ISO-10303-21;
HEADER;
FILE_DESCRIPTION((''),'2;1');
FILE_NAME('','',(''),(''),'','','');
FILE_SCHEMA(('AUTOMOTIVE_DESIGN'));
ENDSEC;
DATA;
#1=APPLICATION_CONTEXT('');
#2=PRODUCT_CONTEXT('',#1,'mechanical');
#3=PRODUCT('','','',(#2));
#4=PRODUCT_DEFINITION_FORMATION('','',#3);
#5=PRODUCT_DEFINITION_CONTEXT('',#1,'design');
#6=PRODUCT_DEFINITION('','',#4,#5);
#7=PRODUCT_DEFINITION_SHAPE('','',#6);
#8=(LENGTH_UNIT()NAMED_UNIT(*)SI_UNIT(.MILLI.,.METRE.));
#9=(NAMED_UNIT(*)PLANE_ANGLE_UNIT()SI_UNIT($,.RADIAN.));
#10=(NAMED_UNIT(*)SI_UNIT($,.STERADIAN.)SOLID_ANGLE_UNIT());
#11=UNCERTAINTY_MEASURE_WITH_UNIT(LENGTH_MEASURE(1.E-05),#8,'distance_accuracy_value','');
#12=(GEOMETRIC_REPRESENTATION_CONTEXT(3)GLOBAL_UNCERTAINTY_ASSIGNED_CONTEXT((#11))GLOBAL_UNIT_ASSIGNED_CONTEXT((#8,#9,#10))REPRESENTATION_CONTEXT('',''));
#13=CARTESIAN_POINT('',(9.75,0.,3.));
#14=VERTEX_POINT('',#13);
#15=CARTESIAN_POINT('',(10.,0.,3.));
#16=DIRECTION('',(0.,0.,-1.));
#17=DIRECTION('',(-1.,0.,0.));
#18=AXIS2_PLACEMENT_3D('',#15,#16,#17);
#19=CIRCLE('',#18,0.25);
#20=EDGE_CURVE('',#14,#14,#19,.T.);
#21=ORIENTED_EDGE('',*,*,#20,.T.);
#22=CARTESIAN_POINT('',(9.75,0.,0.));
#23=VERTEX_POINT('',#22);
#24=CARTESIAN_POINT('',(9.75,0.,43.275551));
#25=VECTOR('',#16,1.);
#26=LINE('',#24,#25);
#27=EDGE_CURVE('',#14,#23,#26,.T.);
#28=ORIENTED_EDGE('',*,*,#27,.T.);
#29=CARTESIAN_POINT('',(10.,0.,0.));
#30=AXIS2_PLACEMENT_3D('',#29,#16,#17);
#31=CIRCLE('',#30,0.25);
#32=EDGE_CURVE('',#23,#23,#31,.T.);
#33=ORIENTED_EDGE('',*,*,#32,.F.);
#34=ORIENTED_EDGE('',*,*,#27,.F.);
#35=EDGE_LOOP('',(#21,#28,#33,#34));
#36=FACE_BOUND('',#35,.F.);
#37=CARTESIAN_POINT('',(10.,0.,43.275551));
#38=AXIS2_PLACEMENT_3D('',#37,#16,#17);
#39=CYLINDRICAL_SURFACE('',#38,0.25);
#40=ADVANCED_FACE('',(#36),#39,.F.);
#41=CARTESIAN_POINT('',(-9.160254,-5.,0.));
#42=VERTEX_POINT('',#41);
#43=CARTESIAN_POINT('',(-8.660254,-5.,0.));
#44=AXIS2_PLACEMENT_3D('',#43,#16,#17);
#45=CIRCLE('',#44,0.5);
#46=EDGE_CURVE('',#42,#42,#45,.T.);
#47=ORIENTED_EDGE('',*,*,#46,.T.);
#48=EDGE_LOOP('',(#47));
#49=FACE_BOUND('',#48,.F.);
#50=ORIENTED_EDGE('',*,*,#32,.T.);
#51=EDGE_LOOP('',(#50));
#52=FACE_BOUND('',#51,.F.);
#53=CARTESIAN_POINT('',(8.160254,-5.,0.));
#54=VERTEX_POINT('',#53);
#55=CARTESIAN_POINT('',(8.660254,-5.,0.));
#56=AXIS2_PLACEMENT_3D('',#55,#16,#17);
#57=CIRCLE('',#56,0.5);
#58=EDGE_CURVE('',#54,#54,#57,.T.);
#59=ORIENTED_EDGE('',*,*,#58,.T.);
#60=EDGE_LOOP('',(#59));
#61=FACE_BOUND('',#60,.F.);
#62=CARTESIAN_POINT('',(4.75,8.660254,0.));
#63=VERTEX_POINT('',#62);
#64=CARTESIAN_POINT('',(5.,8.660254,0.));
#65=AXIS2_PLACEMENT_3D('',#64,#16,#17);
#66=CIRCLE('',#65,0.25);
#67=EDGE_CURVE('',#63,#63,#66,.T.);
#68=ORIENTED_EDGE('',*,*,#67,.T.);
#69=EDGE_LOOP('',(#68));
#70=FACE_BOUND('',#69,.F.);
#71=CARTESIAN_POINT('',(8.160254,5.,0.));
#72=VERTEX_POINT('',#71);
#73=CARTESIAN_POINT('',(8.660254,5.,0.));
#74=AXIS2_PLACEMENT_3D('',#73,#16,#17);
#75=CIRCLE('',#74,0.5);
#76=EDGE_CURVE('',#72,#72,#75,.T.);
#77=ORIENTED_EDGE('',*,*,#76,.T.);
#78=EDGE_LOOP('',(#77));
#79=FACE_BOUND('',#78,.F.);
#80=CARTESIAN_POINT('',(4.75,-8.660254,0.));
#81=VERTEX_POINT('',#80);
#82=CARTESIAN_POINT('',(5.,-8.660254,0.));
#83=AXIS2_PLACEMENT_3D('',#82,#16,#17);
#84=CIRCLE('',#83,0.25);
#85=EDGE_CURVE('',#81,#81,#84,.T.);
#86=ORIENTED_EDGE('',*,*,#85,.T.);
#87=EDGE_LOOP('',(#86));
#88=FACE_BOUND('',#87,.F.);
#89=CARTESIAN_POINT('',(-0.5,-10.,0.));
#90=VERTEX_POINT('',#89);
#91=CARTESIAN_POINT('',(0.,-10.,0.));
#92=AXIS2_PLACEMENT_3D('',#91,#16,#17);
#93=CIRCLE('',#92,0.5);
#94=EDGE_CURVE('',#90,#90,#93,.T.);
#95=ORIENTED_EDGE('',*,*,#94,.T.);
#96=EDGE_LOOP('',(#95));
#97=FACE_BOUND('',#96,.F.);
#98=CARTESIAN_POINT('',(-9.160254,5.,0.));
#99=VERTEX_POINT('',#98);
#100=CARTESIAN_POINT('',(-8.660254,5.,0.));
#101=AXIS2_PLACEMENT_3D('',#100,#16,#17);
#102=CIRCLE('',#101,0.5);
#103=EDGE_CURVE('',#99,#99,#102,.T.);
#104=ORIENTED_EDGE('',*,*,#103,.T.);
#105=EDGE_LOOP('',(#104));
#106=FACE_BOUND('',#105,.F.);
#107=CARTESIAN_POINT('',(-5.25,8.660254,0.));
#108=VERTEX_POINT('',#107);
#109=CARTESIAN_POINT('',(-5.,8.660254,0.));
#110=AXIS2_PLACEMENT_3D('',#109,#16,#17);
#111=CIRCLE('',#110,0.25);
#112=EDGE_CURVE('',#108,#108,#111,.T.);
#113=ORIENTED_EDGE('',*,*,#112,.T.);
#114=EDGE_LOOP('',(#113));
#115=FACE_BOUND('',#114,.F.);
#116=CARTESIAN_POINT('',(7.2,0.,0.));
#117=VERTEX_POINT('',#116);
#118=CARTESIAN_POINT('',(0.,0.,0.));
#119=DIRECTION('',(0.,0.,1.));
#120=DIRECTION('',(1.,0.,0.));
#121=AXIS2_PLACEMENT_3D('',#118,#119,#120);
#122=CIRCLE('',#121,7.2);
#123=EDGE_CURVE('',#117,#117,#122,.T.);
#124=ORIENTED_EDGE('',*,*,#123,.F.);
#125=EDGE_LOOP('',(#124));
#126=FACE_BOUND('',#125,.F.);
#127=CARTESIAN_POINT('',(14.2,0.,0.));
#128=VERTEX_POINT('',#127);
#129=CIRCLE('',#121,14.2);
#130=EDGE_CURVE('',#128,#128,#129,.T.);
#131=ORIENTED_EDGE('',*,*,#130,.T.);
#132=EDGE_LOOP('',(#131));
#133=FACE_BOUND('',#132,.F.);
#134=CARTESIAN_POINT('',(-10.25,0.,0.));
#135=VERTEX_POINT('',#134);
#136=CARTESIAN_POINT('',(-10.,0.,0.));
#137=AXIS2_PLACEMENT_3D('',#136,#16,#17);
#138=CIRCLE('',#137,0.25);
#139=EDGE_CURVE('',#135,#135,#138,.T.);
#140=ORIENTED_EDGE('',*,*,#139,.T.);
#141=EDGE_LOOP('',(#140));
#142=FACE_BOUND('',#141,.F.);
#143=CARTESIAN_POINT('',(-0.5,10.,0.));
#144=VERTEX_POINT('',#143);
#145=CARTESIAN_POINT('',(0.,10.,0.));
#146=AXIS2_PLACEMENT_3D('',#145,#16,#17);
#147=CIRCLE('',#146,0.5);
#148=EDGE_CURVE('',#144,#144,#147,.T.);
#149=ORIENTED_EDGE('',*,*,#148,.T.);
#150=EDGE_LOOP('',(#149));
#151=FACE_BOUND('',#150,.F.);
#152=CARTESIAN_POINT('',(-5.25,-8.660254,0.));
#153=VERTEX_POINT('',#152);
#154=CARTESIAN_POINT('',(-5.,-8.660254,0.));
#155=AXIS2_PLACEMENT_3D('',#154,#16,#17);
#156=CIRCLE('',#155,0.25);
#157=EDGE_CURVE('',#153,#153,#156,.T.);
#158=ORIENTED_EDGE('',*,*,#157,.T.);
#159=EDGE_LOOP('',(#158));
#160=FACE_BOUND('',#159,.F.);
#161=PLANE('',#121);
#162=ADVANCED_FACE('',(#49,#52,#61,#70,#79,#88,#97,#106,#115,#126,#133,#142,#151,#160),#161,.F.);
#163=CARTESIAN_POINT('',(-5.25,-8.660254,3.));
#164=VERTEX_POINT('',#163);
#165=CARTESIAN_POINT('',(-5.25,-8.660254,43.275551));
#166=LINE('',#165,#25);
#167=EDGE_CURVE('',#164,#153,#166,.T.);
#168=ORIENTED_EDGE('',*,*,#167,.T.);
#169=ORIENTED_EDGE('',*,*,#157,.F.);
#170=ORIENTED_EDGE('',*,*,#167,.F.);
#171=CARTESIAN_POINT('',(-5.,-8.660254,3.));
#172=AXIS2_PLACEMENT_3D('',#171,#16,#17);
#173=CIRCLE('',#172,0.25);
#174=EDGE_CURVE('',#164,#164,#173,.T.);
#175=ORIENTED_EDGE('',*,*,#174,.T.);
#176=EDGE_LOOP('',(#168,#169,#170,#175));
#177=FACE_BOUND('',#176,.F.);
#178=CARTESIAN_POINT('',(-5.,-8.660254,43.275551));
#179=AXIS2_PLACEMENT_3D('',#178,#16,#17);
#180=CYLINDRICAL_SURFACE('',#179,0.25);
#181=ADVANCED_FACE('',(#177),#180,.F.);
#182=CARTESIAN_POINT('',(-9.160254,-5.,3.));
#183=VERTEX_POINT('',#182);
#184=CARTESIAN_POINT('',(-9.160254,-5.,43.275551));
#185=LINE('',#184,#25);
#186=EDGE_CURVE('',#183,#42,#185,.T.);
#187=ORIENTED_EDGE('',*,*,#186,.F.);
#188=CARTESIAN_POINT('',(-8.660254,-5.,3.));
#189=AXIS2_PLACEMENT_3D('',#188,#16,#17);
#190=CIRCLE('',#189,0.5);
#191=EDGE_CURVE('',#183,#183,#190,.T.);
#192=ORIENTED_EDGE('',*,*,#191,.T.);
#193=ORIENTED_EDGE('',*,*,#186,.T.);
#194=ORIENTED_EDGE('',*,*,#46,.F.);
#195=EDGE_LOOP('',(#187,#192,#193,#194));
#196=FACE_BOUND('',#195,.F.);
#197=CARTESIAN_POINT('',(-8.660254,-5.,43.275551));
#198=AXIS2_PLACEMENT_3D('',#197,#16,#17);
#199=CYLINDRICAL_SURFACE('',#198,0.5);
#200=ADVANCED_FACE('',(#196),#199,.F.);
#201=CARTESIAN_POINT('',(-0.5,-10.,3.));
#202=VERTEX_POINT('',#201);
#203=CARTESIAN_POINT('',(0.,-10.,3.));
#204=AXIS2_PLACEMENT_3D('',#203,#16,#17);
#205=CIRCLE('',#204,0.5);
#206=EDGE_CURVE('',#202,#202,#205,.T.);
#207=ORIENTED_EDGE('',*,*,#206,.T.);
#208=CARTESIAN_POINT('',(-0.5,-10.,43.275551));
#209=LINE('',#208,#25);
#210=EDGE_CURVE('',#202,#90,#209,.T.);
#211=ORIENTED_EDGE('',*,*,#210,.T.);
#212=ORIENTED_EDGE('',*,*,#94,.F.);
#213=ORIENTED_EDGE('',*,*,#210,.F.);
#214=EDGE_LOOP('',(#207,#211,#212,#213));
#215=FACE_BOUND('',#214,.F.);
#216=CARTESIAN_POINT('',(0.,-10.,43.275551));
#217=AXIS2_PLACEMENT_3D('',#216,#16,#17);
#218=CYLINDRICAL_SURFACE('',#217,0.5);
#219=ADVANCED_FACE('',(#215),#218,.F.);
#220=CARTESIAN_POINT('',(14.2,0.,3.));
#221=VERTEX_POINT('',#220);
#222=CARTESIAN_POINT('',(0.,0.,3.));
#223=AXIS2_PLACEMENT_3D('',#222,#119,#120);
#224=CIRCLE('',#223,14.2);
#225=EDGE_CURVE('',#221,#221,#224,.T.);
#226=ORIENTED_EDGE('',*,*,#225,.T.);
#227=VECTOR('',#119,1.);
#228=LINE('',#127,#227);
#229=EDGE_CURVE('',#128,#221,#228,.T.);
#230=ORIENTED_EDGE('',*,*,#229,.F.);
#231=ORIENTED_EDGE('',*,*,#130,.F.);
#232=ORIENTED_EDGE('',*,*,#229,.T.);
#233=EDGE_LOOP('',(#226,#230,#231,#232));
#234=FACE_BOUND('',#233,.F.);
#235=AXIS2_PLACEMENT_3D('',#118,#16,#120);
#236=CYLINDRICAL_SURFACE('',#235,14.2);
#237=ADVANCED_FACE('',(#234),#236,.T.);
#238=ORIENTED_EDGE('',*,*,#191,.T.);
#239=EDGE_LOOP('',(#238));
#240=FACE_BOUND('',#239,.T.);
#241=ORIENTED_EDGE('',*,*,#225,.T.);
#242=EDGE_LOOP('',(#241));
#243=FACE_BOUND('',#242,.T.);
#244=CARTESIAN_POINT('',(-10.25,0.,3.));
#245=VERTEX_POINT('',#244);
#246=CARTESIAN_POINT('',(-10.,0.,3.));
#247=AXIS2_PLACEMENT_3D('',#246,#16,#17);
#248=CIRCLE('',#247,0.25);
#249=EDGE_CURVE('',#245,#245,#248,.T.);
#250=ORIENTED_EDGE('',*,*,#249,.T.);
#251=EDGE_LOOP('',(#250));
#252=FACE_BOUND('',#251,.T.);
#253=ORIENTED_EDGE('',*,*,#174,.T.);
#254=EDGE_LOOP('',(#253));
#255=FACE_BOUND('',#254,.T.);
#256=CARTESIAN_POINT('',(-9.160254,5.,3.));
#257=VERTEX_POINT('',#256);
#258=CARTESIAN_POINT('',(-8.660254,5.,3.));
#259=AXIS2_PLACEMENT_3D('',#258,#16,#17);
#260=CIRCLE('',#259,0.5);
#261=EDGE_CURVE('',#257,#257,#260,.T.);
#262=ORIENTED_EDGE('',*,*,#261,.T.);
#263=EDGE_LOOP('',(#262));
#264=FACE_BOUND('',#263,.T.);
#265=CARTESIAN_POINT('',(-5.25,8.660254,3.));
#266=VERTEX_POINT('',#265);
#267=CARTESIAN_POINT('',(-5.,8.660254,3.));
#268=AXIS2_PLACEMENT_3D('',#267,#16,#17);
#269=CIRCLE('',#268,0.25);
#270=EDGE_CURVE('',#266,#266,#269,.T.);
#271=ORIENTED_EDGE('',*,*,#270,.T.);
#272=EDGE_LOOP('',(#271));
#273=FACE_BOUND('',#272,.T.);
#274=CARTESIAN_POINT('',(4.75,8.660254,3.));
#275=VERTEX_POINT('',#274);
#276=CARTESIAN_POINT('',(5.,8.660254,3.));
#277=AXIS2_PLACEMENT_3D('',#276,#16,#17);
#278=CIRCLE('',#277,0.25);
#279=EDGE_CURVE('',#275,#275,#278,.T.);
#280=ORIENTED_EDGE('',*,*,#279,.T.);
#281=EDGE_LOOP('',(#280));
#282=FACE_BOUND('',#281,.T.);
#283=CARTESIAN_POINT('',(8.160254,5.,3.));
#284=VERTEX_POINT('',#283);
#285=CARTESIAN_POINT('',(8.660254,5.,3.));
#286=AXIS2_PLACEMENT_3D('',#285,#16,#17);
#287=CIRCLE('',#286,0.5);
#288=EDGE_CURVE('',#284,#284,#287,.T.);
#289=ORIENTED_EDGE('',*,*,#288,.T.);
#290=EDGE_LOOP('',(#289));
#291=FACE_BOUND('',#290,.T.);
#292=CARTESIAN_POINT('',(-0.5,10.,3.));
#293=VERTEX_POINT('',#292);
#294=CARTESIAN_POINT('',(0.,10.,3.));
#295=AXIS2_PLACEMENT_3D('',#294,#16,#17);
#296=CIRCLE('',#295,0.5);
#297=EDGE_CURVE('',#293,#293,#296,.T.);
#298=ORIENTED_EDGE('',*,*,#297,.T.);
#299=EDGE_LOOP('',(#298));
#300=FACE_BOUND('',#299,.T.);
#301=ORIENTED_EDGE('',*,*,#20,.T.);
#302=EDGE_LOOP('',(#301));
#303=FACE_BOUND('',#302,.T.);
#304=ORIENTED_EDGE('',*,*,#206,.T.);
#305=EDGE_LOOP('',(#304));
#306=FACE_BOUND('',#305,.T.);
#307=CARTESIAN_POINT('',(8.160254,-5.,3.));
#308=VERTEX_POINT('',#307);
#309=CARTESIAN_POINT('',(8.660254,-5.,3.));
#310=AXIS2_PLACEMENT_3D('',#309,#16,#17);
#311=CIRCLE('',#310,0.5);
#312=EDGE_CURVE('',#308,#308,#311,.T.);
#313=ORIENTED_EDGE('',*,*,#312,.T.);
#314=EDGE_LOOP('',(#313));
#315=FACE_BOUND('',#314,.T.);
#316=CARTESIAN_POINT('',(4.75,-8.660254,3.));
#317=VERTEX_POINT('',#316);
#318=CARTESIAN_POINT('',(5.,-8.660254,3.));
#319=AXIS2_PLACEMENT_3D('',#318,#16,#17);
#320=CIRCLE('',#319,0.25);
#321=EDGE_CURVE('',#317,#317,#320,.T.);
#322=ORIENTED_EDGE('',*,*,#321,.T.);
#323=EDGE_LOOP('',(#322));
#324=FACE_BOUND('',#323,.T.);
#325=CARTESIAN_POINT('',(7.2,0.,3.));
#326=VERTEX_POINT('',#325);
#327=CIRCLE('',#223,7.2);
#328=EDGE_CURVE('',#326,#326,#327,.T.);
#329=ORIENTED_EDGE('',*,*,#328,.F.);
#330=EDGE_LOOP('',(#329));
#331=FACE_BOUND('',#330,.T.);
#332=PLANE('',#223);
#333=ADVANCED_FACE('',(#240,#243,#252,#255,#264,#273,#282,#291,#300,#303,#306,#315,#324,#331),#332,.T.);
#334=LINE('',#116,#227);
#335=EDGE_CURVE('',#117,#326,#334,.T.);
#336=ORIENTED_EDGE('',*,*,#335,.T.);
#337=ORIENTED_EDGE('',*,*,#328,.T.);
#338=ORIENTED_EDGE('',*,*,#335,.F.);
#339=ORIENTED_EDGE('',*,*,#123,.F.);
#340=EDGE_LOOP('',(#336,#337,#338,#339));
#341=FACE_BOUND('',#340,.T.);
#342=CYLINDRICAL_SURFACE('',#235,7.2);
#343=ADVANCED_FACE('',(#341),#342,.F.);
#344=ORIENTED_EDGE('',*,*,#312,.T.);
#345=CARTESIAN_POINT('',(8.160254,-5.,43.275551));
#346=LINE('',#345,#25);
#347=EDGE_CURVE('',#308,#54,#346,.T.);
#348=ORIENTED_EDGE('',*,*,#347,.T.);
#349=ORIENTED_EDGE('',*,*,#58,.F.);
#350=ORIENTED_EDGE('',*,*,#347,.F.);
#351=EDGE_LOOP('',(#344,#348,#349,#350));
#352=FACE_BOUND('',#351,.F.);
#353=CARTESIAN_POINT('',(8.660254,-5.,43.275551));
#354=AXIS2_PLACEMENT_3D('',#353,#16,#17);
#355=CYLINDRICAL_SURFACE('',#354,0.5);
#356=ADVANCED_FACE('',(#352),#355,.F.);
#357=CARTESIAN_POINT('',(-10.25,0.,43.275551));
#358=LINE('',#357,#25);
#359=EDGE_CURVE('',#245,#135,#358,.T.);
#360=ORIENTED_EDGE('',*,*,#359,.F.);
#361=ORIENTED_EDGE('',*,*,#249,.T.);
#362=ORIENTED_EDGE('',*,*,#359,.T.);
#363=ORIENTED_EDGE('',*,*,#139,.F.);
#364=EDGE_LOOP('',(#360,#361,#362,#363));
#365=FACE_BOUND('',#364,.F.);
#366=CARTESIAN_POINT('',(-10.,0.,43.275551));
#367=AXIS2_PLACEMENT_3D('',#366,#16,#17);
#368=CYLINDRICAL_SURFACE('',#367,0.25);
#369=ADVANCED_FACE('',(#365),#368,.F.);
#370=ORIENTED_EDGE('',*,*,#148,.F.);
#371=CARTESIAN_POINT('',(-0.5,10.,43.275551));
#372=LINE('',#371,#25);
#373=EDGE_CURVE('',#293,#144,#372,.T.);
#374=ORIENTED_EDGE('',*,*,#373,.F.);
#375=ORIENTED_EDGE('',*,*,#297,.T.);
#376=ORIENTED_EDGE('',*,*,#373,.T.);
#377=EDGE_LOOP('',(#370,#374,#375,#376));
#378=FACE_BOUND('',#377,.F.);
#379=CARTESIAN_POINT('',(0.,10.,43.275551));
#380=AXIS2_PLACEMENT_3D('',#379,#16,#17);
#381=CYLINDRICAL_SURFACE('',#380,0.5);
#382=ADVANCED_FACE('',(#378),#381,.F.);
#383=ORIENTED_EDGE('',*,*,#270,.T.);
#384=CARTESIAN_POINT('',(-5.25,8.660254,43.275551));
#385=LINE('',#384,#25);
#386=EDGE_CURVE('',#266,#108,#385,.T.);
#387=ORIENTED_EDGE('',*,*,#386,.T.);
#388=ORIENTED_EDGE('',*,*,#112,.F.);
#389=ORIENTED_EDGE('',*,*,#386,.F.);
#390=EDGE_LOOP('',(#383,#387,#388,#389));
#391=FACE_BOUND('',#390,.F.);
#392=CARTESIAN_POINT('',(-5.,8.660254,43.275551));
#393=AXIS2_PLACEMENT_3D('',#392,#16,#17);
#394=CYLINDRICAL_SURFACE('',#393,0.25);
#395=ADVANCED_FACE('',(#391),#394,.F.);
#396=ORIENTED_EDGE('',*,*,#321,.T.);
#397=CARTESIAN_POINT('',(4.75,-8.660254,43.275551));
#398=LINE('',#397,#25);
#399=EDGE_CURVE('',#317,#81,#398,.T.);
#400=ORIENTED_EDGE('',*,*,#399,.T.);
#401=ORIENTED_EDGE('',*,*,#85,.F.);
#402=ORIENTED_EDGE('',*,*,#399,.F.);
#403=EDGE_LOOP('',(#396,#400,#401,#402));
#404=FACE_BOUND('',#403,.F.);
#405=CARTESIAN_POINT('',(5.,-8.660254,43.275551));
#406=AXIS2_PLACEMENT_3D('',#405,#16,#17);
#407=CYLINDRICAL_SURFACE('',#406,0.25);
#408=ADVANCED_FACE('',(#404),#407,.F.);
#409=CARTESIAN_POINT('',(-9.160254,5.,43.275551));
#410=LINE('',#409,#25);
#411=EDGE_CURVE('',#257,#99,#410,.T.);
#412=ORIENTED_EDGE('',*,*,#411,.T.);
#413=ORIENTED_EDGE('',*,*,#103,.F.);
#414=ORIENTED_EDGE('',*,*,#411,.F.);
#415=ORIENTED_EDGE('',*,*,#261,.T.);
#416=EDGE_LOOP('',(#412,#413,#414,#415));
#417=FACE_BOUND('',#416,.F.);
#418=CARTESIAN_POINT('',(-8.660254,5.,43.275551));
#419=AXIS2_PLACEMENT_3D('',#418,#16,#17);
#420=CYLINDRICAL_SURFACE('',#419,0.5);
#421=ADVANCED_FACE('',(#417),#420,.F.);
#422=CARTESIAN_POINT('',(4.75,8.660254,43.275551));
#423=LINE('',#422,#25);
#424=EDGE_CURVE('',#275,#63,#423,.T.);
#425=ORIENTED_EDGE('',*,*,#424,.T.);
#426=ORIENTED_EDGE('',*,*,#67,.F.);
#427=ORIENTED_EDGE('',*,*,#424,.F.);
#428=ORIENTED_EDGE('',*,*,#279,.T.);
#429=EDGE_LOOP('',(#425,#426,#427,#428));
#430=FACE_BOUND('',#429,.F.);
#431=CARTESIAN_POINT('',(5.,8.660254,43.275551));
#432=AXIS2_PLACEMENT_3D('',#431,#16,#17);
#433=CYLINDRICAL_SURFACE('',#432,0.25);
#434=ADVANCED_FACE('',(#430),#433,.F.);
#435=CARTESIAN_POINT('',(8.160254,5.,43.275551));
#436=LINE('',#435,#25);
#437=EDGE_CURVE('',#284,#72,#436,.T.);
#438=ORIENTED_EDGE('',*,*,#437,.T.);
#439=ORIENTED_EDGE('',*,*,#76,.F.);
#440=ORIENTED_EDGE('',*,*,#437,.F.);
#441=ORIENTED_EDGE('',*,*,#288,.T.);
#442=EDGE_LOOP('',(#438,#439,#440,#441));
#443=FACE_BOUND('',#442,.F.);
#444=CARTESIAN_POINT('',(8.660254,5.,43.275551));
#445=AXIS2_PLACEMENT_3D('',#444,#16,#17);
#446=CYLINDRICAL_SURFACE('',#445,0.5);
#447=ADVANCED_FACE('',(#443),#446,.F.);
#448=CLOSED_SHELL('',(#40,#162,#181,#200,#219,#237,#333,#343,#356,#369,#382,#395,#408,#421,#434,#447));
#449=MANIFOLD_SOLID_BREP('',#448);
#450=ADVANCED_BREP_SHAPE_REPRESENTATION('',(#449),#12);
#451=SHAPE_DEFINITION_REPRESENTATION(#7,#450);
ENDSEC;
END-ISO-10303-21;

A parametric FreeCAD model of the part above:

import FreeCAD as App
import Part
import Sketcher

V = App.Vector
Q = App.Units.Quantity

doc = App.newDocument("Part")
body = doc.addObject("PartDesign::Body", "Body")

# Sketch on XY plane
sketch1 = doc.addObject("Sketcher::SketchObject", "Sketch")
body.addObject(sketch1)
sketch1.AttachmentSupport = (doc.XY_Plane, [""])
sketch1.MapMode = "FlatFace"
sketch1.addGeometry(Part.Circle(V(0, 0, 0), V(0, 0, 1), 14), False)
sketch1.addGeometry(Part.Circle(V(0, 0, 0), V(0, 0, 1), 7), False)
sketch1.addConstraint(Sketcher.Constraint("Coincident", 0, 3, -1, 1))
sketch1.addConstraint(Sketcher.Constraint("Coincident", 1, 3, -1, 1))
sketch1.addConstraint(Sketcher.Constraint("Diameter", 0, Q("28.4 mm")))
sketch1.addConstraint(Sketcher.Constraint("Diameter", 1, Q("14.4 mm")))
pad1 = doc.addObject("PartDesign::Pad", "Pad")
body.addObject(pad1)
pad1.Profile = sketch1
pad1.Length = 3

# Sketch on XY plane
sketch2 = doc.addObject("Sketcher::SketchObject", "Sketch001")
body.addObject(sketch2)
sketch2.AttachmentSupport = (doc.XY_Plane, [""])
sketch2.MapMode = "FlatFace"
sketch2.AttachmentOffset = App.Placement(V(0, 0, 3), App.Rotation())
sketch2.addGeometry(Part.Circle(V(0, 10, 0), V(0, 0, 1), 0.5), False)
sketch2.addGeometry(Part.Circle(V(8.7, 5, 0), V(0, 0, 1), 0.5), False)
sketch2.addGeometry(Part.Circle(V(8.7, -5, 0), V(0, 0, 1), 0.5), False)
sketch2.addGeometry(Part.Circle(V(0, -10, 0), V(0, 0, 1), 0.5), False)
sketch2.addGeometry(Part.Circle(V(-8.7, 5, 0), V(0, 0, 1), 0.5), False)
sketch2.addGeometry(Part.Circle(V(-8.7, -5, 0), V(0, 0, 1), 0.5), False)
sketch2.addConstraint(Sketcher.Constraint("Equal", 0, 1))
sketch2.addConstraint(Sketcher.Constraint("Equal", 1, 2))
sketch2.addConstraint(Sketcher.Constraint("Equal", 2, 3))
sketch2.addConstraint(Sketcher.Constraint("Equal", 3, 4))
sketch2.addConstraint(Sketcher.Constraint("Equal", 4, 5))
sketch2.addConstraint(Sketcher.Constraint("Symmetric", 0, 3, 3, 3, -1, 1))
sketch2.addConstraint(Sketcher.Constraint("Symmetric", 2, 3, 4, 3, -1, 1))
sketch2.addConstraint(Sketcher.Constraint("Symmetric", 1, 3, 5, 3, -1, 1))
sketch2.addConstraint(Sketcher.Constraint("Symmetric", 1, 3, 4, 3, -2))
sketch2.addConstraint(Sketcher.Constraint("PointOnObject", 0, 3, -2))
sketch2.addConstraint(Sketcher.Constraint("Diameter", 0, Q("1 mm")))
sketch2.addConstraint(Sketcher.Constraint("DistanceY", -1, 1, 0, 3, Q("10 mm")))
sketch2.addConstraint(Sketcher.Constraint("DistanceY", -1, 1, 1, 3, Q("5 mm")))
sketch2.addConstraint(Sketcher.Constraint("DistanceX", 4, 3, 1, 3, Q("17.320508 mm")))
doc.recompute()
hole = doc.addObject("PartDesign::Hole", "Hole")
body.addObject(hole)
hole.Profile = sketch2
hole.ThreadType = "None"
hole.Diameter = 1
hole.DepthType = "ThroughAll"

# Sketch on XY plane
sketch3 = doc.addObject("Sketcher::SketchObject", "Sketch002")
body.addObject(sketch3)
sketch3.AttachmentSupport = (doc.XY_Plane, [""])
sketch3.MapMode = "FlatFace"
sketch3.AttachmentOffset = App.Placement(V(0, 0, 3), App.Rotation())
sketch3.addGeometry(Part.Circle(V(-5, 8.66, 0), V(0, 0, 1), 0.25), False)
sketch3.addGeometry(Part.Circle(V(5, 8.66, 0), V(0, 0, 1), 0.25), False)
sketch3.addGeometry(Part.Circle(V(10, 0, 0), V(0, 0, 1), 0.25), False)
sketch3.addGeometry(Part.Circle(V(5, -8.66, 0), V(0, 0, 1), 0.25), False)
sketch3.addGeometry(Part.Circle(V(-5, -8.66, 0), V(0, 0, 1), 0.25), False)
sketch3.addGeometry(Part.Circle(V(-10, 0, 0), V(0, 0, 1), 0.25), False)
sketch3.addConstraint(Sketcher.Constraint("Equal", 0, 1))
sketch3.addConstraint(Sketcher.Constraint("Equal", 1, 2))
sketch3.addConstraint(Sketcher.Constraint("Equal", 2, 3))
sketch3.addConstraint(Sketcher.Constraint("Equal", 3, 4))
sketch3.addConstraint(Sketcher.Constraint("Equal", 4, 5))
sketch3.addConstraint(Sketcher.Constraint("Symmetric", 0, 3, 3, 3, -1, 1))
sketch3.addConstraint(Sketcher.Constraint("Symmetric", 1, 3, 4, 3, -1, 1))
sketch3.addConstraint(Sketcher.Constraint("Symmetric", 2, 3, 5, 3, -1, 1))
sketch3.addConstraint(Sketcher.Constraint("Symmetric", 0, 3, 1, 3, -2))
sketch3.addConstraint(Sketcher.Constraint("PointOnObject", 2, 3, -1))
sketch3.addConstraint(Sketcher.Constraint("Diameter", 0, Q("0.5 mm")))
sketch3.addConstraint(Sketcher.Constraint("DistanceX", 0, 3, -1, 1, Q("5 mm")))
sketch3.addConstraint(Sketcher.Constraint("DistanceX", -1, 1, 2, 3, Q("10 mm")))
sketch3.addConstraint(Sketcher.Constraint("DistanceY", 3, 3, 1, 3, Q("17.320508 mm")))
doc.recompute()
hole2 = doc.addObject("PartDesign::Hole", "Hole001")
body.addObject(hole2)
hole2.Profile = sketch3
hole2.ThreadType = "None"
hole2.Diameter = 0.5
hole2.DepthType = "ThroughAll"

doc.recompute()
